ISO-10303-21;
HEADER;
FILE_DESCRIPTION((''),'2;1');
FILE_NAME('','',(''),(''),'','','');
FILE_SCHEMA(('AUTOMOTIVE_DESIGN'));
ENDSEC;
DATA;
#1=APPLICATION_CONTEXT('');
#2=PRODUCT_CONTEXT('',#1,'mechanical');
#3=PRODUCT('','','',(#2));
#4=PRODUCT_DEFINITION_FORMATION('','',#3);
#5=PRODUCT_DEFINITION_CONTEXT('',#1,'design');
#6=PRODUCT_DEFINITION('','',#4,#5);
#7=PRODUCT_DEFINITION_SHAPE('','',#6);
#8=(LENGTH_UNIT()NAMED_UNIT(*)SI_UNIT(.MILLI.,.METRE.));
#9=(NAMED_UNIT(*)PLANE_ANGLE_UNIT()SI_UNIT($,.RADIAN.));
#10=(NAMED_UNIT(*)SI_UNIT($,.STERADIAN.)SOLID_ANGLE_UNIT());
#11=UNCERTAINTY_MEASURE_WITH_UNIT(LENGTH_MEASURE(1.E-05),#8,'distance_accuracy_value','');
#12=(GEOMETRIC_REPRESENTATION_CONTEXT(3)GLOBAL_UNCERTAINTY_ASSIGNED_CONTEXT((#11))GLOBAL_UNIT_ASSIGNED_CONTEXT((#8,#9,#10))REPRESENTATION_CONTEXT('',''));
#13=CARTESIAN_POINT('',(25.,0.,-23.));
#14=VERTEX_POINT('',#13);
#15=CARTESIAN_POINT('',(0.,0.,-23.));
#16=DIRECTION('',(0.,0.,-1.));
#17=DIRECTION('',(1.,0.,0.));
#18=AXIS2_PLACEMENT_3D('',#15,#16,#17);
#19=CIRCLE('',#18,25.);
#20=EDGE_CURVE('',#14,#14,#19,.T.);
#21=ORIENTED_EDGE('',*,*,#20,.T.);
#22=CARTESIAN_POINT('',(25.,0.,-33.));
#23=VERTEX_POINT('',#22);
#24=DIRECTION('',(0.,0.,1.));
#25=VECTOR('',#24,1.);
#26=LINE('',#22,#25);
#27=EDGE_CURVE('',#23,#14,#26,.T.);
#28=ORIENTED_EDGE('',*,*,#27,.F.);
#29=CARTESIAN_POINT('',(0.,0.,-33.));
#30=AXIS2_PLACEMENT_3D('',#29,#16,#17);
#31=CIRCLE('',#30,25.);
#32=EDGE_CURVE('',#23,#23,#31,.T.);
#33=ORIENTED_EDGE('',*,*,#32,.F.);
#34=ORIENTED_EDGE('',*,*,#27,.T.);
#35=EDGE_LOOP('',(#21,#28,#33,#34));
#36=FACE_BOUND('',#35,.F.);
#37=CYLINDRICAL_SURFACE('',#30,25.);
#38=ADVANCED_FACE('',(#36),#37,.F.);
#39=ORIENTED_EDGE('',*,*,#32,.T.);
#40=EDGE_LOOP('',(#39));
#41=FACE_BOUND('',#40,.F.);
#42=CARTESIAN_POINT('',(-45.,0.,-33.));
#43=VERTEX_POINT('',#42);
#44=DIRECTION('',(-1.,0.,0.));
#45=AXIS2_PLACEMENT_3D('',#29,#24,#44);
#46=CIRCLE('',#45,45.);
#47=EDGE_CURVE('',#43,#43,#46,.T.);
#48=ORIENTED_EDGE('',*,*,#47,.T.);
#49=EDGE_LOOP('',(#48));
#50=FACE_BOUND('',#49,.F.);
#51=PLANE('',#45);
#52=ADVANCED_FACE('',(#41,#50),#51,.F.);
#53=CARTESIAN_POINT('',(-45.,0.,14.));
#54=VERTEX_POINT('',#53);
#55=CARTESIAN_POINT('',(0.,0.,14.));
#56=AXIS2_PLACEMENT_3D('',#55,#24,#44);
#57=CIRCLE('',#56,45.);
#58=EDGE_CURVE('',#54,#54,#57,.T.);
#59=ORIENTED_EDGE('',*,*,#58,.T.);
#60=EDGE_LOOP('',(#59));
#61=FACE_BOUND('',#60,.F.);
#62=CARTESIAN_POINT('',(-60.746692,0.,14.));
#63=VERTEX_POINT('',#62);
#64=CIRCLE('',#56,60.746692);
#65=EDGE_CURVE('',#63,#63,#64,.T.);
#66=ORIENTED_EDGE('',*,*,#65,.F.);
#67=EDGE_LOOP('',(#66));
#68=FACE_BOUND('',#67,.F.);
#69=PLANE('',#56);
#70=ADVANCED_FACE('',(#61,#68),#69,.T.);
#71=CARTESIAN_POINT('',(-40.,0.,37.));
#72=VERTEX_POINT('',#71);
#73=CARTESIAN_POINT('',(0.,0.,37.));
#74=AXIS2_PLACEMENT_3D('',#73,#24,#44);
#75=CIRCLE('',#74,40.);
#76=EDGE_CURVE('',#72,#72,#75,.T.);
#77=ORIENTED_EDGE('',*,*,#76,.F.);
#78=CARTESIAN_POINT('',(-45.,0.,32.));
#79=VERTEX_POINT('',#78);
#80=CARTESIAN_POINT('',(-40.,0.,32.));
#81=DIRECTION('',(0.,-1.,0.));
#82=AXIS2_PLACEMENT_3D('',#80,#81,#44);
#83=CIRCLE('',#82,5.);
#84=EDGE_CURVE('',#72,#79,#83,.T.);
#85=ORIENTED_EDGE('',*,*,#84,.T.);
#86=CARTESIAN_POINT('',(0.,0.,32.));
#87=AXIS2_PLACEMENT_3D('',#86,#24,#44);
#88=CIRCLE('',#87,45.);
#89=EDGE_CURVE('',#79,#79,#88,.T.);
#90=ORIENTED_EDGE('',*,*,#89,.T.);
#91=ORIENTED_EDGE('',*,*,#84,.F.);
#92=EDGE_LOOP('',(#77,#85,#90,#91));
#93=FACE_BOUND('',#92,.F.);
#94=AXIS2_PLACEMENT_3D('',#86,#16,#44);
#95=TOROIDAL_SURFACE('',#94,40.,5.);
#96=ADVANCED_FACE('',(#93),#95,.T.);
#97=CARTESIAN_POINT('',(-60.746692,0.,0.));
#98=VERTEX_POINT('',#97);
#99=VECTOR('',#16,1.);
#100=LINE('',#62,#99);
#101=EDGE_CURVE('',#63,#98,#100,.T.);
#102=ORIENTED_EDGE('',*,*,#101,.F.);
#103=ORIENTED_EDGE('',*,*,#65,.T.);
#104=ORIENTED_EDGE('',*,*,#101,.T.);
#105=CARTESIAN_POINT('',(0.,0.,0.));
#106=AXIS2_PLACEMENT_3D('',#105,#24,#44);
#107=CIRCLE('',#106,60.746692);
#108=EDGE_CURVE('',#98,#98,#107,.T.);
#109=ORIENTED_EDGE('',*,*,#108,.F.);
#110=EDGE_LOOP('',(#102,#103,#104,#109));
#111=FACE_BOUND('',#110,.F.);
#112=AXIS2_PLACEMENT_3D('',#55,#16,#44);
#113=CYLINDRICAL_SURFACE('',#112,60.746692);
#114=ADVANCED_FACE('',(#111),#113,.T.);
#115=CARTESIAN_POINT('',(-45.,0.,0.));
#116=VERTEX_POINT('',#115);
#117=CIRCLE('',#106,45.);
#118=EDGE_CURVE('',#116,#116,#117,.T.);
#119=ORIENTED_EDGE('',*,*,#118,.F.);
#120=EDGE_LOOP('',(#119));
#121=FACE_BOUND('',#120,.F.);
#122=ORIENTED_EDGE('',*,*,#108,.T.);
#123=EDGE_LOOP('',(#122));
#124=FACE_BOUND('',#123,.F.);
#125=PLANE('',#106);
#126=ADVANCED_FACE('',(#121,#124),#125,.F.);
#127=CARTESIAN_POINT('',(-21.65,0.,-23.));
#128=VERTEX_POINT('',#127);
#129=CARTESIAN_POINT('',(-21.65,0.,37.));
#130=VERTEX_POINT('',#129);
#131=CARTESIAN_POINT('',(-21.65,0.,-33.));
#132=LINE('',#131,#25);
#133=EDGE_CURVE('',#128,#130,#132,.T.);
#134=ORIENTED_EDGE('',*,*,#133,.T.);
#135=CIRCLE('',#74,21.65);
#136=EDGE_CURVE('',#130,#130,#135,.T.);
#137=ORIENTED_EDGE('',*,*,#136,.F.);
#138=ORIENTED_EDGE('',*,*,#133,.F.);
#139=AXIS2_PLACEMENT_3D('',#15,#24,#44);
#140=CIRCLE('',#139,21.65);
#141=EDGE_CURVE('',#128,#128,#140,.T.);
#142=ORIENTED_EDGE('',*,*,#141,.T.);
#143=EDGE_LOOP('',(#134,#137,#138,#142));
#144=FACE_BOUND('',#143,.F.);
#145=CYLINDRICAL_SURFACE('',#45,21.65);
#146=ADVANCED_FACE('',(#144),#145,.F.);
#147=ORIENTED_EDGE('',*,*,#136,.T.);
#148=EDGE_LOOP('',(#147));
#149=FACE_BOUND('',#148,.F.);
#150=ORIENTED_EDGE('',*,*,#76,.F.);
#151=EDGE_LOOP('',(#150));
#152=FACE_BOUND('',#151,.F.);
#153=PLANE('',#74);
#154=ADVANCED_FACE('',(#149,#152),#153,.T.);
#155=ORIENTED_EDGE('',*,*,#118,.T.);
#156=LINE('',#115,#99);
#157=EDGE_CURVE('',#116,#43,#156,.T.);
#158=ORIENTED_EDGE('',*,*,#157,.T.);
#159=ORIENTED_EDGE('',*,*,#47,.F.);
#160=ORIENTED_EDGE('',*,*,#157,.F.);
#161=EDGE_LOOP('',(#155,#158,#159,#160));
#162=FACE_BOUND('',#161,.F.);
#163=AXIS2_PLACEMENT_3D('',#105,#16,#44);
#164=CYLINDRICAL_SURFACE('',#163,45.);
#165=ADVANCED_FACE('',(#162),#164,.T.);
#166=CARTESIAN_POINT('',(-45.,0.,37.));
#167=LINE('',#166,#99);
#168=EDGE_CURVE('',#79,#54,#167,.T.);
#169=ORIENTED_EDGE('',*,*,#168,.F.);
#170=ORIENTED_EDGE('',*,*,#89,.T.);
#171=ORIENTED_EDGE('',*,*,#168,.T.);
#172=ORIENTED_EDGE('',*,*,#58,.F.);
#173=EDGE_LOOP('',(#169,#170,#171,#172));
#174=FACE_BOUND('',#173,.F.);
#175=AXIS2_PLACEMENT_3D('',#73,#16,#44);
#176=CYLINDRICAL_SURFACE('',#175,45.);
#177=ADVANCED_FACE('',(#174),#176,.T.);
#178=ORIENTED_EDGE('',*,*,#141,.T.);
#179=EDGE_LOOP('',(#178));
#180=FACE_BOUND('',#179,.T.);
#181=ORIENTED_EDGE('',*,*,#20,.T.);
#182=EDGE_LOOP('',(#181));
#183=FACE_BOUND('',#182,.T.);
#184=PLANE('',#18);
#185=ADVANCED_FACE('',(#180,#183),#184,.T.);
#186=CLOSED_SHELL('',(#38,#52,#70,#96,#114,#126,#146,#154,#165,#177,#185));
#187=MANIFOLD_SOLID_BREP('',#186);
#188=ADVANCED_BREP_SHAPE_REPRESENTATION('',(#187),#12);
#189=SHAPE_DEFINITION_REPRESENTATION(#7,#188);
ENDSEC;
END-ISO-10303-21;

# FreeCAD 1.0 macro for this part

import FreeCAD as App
import Part
import Sketcher

V = App.Vector
Q = App.Units.Quantity


def edges_at(feature, points):
    """Names of the edges that pass closest to the given points."""
    edges = feature.Shape.Edges
    near = lambda p: min(range(len(edges)), key=lambda i: edges[i].distToShape(Part.Vertex(*p))[0])
    return sorted({f"Edge{near(p) + 1}" for p in points})

doc = App.newDocument("Part")
body = doc.addObject("PartDesign::Body", "Body")

sketch1 = body.newObject("Sketcher::SketchObject", "Sketch")
sketch1.AttachmentSupport = (doc.getObject("XZ_Plane"), [""])
sketch1.MapMode = "FlatFace"
sketch1.addGeometry([
    Part.LineSegment(V(-60.746692, 14, 0), V(-60.746692, 0, 0)),
    Part.LineSegment(V(-60.746692, 0, 0), V(-45, 0, 0)),
    Part.LineSegment(V(-45, 0, 0), V(-45, -33, 0)),
    Part.LineSegment(V(-45, -33, 0), V(-21.65, -33, 0)),
    Part.LineSegment(V(-21.65, -33, 0), V(-21.65, 37, 0)),
    Part.LineSegment(V(-21.65, 37, 0), V(-45, 37, 0)),
    Part.LineSegment(V(-45, 37, 0), V(-45, 14, 0)),
    Part.LineSegment(V(-45, 14, 0), V(-60.746692, 14, 0)),
], False)
sketch1.addConstraint([
    Sketcher.Constraint("Coincident", 0, 2, 1, 1),
    Sketcher.Constraint("Coincident", 1, 2, 2, 1),
    Sketcher.Constraint("Coincident", 2, 2, 3, 1),
    Sketcher.Constraint("Coincident", 3, 2, 4, 1),
    Sketcher.Constraint("Coincident", 4, 2, 5, 1),
    Sketcher.Constraint("Coincident", 5, 2, 6, 1),
    Sketcher.Constraint("Coincident", 6, 2, 7, 1),
    Sketcher.Constraint("Coincident", 7, 2, 0, 1),
    Sketcher.Constraint("Vertical", 0),
    Sketcher.Constraint("Horizontal", 1),
    Sketcher.Constraint("Vertical", 2),
    Sketcher.Constraint("Horizontal", 3),
    Sketcher.Constraint("Vertical", 4),
    Sketcher.Constraint("Horizontal", 5),
    Sketcher.Constraint("Vertical", 6),
    Sketcher.Constraint("Horizontal", 7),
    Sketcher.Constraint("PointOnObject", 0, 2, -1),
    Sketcher.Constraint("Vertical", 2, 2, 5, 2),
    Sketcher.Constraint("DistanceY", 0, 2, 0, 1, Q("14 mm")),
    Sketcher.Constraint("DistanceY", 2, 2, 2, 1, Q("33 mm")),
    Sketcher.Constraint("DistanceY", 4, 1, 4, 2, Q("70 mm")),
    Sketcher.Constraint("DistanceX", 1, 2, -1, 1, Q("45 mm")),
    Sketcher.Constraint("DistanceX", 3, 1, 3, 2, Q("23.35 mm")),
    Sketcher.Constraint("DistanceX", 1, 1, 1, 2, Q("15.746692 mm")),
])
revolution = body.newObject("PartDesign::Revolution", "Revolution")
revolution.Profile = sketch1
revolution.ReferenceAxis = (sketch1, ["V_Axis"])
revolution.Angle = 360
doc.recompute()

fillet = body.newObject("PartDesign::Fillet", "Fillet")
fillet.Base = (revolution, edges_at(revolution, [(45, 0, 37)]))
fillet.Radius = 5

sketch2 = body.newObject("Sketcher::SketchObject", "Sketch001")
sketch2.AttachmentSupport = (doc.getObject("XY_Plane"), [""])
sketch2.MapMode = "FlatFace"
sketch2.AttachmentOffset = App.Placement(V(0, 0, -33), App.Rotation())
sketch2.addGeometry(Part.Circle(V(0, 0, 0), V(0, 0, 1), 25), False)
sketch2.addConstraint([
    Sketcher.Constraint("Coincident", 0, 3, -1, 1),
    Sketcher.Constraint("Diameter", 0, Q("50 mm")),
])
pocket1 = body.newObject("PartDesign::Pocket", "Pocket")
pocket1.Profile = sketch2
pocket1.Length = 10
pocket1.Reversed = True

doc.recompute()
